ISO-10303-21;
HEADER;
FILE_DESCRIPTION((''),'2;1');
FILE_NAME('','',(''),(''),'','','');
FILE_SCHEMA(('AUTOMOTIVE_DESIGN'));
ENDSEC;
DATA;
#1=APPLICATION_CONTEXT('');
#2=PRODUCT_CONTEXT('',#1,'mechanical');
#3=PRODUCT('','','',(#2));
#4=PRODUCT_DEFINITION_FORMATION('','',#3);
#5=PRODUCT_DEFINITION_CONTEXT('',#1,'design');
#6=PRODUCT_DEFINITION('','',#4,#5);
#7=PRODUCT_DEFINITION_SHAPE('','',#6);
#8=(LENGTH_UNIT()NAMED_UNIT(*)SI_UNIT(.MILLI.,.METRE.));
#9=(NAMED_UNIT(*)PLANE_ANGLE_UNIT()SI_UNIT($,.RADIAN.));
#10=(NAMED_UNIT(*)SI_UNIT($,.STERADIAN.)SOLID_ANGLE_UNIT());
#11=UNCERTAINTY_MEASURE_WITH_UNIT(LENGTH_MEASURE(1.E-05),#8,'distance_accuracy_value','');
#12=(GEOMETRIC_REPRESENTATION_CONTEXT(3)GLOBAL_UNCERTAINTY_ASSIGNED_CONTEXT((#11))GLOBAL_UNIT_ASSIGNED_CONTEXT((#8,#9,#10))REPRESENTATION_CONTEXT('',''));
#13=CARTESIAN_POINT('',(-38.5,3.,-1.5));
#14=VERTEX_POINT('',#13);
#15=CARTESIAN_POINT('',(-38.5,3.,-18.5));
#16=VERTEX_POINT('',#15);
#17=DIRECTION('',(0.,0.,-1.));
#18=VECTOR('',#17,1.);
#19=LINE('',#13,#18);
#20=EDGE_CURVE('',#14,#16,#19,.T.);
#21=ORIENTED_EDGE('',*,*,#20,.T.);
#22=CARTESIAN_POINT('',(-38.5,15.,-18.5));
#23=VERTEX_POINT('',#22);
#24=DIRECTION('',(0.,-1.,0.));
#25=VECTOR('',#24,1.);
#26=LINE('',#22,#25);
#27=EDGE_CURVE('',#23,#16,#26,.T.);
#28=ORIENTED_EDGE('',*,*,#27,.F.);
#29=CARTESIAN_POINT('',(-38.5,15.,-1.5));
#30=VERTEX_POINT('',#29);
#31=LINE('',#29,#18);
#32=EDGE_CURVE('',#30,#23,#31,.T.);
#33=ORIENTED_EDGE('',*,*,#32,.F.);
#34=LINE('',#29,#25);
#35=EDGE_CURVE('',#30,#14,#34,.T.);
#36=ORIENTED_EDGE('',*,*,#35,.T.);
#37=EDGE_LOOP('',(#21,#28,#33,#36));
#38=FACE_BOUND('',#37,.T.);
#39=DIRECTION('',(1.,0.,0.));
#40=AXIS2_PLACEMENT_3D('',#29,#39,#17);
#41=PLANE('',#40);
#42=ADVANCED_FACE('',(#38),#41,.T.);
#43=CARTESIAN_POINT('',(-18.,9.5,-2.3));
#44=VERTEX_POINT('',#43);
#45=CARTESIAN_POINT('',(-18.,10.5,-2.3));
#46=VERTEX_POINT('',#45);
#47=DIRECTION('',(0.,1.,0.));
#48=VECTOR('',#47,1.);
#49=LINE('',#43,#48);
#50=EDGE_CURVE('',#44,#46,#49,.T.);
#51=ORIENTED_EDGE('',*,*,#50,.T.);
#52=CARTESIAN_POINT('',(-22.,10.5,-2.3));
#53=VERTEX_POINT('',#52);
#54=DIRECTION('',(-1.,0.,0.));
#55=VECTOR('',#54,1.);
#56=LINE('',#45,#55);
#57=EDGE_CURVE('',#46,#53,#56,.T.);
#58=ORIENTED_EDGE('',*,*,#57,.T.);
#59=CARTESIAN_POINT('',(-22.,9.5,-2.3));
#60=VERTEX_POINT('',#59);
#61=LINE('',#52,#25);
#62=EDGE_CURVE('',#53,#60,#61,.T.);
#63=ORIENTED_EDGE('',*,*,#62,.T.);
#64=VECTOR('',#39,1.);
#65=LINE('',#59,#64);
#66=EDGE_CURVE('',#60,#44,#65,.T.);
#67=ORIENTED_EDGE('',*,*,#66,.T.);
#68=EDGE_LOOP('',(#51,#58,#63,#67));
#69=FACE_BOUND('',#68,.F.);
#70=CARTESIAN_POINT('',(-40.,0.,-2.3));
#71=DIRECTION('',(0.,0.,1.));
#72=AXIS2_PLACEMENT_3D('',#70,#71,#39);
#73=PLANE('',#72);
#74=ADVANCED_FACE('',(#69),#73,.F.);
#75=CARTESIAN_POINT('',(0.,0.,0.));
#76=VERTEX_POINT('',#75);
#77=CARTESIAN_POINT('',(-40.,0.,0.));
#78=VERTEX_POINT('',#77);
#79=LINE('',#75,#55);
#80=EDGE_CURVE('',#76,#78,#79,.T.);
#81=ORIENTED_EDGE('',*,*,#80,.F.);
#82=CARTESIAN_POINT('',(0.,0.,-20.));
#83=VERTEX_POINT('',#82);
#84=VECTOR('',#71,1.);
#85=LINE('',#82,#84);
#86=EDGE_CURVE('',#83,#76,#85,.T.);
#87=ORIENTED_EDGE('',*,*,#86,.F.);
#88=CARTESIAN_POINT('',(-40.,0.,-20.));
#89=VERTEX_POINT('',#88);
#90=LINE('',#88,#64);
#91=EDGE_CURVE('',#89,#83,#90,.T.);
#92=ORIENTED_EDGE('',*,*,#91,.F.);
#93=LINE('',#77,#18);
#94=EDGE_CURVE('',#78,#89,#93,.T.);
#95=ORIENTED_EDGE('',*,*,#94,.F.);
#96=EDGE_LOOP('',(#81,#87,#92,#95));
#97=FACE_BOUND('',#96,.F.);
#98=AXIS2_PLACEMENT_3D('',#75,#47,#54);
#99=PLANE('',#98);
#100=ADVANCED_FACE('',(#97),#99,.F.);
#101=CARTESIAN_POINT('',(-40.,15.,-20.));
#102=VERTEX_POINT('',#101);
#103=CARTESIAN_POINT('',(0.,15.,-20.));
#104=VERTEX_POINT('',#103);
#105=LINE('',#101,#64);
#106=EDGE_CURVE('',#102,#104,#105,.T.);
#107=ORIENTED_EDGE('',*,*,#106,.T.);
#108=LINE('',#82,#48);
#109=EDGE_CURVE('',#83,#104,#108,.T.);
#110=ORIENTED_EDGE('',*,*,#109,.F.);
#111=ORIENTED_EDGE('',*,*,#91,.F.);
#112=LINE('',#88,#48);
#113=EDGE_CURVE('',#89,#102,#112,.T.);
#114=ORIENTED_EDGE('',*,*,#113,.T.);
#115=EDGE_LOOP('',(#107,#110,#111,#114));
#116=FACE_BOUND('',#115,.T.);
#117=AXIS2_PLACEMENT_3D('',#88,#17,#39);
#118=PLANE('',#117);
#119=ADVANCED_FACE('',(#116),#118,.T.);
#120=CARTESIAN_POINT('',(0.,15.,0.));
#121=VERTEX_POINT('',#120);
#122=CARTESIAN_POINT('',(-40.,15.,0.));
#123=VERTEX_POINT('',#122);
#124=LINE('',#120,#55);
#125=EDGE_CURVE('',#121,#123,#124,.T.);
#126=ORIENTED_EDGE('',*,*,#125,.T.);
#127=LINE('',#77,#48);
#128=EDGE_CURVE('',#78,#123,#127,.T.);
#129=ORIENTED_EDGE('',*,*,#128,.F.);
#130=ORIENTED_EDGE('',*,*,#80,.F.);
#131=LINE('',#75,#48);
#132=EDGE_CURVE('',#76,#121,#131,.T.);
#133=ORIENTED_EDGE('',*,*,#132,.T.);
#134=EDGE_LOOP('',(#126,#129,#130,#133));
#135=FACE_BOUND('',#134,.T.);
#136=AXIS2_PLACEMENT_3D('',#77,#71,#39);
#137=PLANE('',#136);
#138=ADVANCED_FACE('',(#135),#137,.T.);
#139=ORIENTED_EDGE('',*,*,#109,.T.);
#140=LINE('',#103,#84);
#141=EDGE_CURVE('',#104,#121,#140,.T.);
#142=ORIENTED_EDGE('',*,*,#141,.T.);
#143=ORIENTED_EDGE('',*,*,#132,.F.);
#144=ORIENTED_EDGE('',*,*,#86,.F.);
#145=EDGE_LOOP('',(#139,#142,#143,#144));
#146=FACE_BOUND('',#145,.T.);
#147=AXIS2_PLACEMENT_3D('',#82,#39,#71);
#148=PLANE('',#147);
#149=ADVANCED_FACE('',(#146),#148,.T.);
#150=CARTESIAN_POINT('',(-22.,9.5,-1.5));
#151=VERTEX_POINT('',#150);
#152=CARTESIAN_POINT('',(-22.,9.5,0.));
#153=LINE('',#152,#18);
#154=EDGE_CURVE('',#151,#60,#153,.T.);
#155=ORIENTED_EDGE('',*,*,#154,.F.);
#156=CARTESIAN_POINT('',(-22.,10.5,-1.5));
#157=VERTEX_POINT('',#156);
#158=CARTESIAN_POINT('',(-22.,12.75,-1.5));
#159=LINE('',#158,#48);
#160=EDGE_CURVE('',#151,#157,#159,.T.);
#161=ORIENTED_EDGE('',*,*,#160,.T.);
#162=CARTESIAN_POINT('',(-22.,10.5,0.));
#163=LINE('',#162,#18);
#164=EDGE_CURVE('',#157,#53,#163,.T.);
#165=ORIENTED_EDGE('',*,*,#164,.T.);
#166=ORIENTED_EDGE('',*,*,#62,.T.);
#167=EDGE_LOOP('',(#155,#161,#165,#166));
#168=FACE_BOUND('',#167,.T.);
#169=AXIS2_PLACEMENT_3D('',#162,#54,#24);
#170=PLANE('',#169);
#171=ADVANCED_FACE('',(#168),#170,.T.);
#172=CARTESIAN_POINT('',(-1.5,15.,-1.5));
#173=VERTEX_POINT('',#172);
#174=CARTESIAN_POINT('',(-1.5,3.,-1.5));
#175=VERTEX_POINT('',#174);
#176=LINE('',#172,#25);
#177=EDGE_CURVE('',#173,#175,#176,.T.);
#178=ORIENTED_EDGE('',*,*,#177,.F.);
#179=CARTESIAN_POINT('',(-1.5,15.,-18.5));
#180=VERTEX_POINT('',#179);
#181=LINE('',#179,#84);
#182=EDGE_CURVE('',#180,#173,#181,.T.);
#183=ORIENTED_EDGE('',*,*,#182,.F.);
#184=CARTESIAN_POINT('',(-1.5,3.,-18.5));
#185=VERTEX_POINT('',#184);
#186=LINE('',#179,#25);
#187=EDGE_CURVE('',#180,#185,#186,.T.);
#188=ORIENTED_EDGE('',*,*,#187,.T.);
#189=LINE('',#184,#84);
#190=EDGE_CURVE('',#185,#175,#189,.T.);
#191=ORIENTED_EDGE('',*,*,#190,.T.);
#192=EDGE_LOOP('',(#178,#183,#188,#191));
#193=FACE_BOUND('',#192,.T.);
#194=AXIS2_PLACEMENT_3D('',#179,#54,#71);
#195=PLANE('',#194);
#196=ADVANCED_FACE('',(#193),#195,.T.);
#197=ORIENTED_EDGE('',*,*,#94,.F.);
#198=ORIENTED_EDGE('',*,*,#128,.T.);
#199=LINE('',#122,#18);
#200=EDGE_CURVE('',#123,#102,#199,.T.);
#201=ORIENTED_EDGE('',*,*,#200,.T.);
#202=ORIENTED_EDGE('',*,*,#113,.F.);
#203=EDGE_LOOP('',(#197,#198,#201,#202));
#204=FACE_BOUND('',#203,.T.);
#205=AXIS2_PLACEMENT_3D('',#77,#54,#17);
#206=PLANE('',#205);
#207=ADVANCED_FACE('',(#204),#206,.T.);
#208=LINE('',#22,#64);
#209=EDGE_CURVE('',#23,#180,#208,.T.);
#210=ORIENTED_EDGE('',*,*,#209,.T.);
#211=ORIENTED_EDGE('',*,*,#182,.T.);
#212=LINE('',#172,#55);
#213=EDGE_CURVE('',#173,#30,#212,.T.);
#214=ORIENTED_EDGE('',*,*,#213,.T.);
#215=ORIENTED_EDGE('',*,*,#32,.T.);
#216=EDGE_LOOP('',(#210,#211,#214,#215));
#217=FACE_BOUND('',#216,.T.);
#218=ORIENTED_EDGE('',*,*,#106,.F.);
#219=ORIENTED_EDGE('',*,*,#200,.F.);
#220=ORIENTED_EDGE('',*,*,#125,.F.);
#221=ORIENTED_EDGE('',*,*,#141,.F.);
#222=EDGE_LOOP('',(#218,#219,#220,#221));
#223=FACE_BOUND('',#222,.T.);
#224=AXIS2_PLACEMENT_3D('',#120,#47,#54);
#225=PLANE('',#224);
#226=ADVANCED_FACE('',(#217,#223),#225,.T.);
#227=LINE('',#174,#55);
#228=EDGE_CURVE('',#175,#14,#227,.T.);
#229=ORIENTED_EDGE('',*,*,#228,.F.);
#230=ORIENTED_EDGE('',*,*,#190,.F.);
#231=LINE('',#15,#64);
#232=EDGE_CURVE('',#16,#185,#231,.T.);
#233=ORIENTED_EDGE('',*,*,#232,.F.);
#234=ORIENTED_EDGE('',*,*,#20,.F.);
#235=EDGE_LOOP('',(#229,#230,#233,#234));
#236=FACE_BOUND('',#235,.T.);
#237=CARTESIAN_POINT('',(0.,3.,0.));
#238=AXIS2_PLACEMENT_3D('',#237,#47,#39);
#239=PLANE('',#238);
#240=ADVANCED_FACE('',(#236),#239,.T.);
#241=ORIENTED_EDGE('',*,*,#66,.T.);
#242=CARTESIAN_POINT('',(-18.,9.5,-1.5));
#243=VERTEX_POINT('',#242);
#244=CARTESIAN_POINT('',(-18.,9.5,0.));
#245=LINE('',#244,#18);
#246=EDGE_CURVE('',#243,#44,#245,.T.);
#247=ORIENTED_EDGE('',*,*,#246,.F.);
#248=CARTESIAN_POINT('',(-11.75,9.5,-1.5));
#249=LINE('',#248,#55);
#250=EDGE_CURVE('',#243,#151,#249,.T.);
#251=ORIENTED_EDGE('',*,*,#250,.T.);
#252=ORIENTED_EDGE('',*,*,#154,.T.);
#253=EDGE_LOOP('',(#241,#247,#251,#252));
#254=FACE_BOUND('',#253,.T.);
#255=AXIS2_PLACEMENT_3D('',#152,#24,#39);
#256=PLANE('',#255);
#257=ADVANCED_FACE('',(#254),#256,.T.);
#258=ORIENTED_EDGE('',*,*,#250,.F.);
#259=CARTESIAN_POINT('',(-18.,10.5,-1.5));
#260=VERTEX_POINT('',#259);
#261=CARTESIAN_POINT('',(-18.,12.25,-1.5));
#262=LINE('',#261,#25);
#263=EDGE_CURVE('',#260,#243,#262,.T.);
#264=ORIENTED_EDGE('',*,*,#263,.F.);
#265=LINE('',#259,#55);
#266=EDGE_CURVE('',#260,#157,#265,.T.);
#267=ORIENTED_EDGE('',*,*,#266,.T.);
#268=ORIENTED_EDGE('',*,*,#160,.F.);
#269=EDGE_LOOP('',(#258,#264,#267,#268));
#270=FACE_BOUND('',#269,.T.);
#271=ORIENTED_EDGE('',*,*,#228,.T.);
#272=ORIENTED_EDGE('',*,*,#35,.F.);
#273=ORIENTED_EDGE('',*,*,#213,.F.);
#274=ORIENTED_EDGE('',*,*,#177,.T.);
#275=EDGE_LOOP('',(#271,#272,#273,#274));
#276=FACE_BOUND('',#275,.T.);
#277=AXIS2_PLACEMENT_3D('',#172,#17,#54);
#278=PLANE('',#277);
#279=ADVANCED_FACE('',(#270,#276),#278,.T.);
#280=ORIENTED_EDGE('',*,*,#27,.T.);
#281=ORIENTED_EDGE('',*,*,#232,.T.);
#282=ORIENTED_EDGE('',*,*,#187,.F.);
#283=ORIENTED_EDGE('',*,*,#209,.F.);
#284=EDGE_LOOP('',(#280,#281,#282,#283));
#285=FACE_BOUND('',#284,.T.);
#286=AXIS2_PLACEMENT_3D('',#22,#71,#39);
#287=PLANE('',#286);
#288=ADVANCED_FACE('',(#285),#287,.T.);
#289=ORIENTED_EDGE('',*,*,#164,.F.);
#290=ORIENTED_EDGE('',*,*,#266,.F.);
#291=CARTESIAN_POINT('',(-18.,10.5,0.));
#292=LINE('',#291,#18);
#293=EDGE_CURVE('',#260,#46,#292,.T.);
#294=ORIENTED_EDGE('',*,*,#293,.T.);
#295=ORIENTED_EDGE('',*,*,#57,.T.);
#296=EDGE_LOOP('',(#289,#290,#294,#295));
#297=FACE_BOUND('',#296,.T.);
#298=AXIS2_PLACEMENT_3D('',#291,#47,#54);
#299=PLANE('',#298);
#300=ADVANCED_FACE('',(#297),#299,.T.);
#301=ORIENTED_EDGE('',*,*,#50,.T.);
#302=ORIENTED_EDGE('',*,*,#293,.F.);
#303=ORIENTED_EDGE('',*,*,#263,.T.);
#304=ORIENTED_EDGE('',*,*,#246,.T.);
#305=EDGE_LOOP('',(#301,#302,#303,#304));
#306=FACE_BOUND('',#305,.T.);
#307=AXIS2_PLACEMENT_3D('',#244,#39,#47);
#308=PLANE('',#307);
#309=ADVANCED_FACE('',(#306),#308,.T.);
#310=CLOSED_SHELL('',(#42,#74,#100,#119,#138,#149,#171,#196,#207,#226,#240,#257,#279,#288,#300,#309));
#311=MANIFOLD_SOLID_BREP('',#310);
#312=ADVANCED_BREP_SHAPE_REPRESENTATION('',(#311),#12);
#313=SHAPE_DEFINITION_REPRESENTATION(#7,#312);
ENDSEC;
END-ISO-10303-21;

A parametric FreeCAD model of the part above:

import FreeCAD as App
import Part
import Sketcher
from FreeCAD import Vector

doc = App.newDocument("Part")
body = doc.addObject("PartDesign::Body", "Body")

# Sketch on XZ plane
sketch1 = doc.addObject("Sketcher::SketchObject", "Sketch")
body.addObject(sketch1)
sketch1.AttachmentSupport = (doc.XZ_Plane, [""])
sketch1.MapMode = "FlatFace"
sketch1.addGeometry([
    Part.LineSegment(Vector(-40, 0, 0), Vector(0, 0, 0)),
    Part.LineSegment(Vector(0, 0, 0), Vector(0, -20, 0)),
    Part.LineSegment(Vector(0, -20, 0), Vector(-40, -20, 0)),
    Part.LineSegment(Vector(-40, -20, 0), Vector(-40, 0, 0)),
], False)
sketch1.addConstraint([
    Sketcher.Constraint("Coincident", 0, 2, 1, 1),
    Sketcher.Constraint("Coincident", 1, 2, 2, 1),
    Sketcher.Constraint("Coincident", 2, 2, 3, 1),
    Sketcher.Constraint("Coincident", 3, 2, 0, 1),
    Sketcher.Constraint("Horizontal", 0),
    Sketcher.Constraint("Vertical", 1),
    Sketcher.Constraint("Horizontal", 2),
    Sketcher.Constraint("Vertical", 3),
    Sketcher.Constraint("Coincident", 0, 2, -1, 1),
    Sketcher.Constraint("DistanceX", 0, 1, 0, 2, 40.0),
    Sketcher.Constraint("DistanceY", 1, 2, 1, 1, 20.0),
])
pad1 = doc.addObject("PartDesign::Pad", "Pad")
body.addObject(pad1)
pad1.Profile = sketch1
pad1.Length = 15
pad1.Reversed = True

# Sketch on XZ plane
sketch2 = doc.addObject("Sketcher::SketchObject", "Sketch001")
body.addObject(sketch2)
sketch2.AttachmentSupport = (doc.XZ_Plane, [""])
sketch2.MapMode = "FlatFace"
sketch2.AttachmentOffset = App.Placement(Vector(0, 0, -15), App.Rotation())
sketch2.addGeometry([
    Part.LineSegment(Vector(-38, -2, 0), Vector(-2, -2, 0)),
    Part.LineSegment(Vector(-2, -2, 0), Vector(-2, -18, 0)),
    Part.LineSegment(Vector(-2, -18, 0), Vector(-38, -18, 0)),
    Part.LineSegment(Vector(-38, -18, 0), Vector(-38, -2, 0)),
], False)
sketch2.addConstraint([
    Sketcher.Constraint("Coincident", 0, 2, 1, 1),
    Sketcher.Constraint("Coincident", 1, 2, 2, 1),
    Sketcher.Constraint("Coincident", 2, 2, 3, 1),
    Sketcher.Constraint("Coincident", 3, 2, 0, 1),
    Sketcher.Constraint("Horizontal", 0),
    Sketcher.Constraint("Vertical", 1),
    Sketcher.Constraint("Horizontal", 2),
    Sketcher.Constraint("Vertical", 3),
    Sketcher.Constraint("DistanceX", 0, 1, 0, 2, 37.0),
    Sketcher.Constraint("DistanceY", 1, 2, 1, 1, 17.0),
    Sketcher.Constraint("DistanceX", 0, 2, -1, 1, 1.5),
    Sketcher.Constraint("DistanceY", 0, 2, -1, 1, 1.5),
])
pocket1 = doc.addObject("PartDesign::Pocket", "Pocket")
body.addObject(pocket1)
pocket1.Profile = sketch2
pocket1.Length = 12
pocket1.Reversed = True

# Sketch on XY plane
sketch3 = doc.addObject("Sketcher::SketchObject", "Sketch002")
body.addObject(sketch3)
sketch3.AttachmentSupport = (doc.XY_Plane, [""])
sketch3.MapMode = "FlatFace"
sketch3.addGeometry([
    Part.LineSegment(Vector(-18, 10.5, 0), Vector(-22, 10.5, 0)),
    Part.LineSegment(Vector(-22, 10.5, 0), Vector(-22, 9.5, 0)),
    Part.LineSegment(Vector(-22, 9.5, 0), Vector(-18, 9.5, 0)),
    Part.LineSegment(Vector(-18, 9.5, 0), Vector(-18, 10.5, 0)),
], False)
sketch3.addConstraint([
    Sketcher.Constraint("Coincident", 0, 2, 1, 1),
    Sketcher.Constraint("Coincident", 1, 2, 2, 1),
    Sketcher.Constraint("Coincident", 2, 2, 3, 1),
    Sketcher.Constraint("Coincident", 3, 2, 0, 1),
    Sketcher.Constraint("Horizontal", 0),
    Sketcher.Constraint("Vertical", 1),
    Sketcher.Constraint("Horizontal", 2),
    Sketcher.Constraint("Vertical", 3),
    Sketcher.Constraint("DistanceX", 0, 2, 0, 1, 4.0),
    Sketcher.Constraint("DistanceY", 1, 2, 1, 1, 1.0),
    Sketcher.Constraint("DistanceX", 0, 2, -1, 1, 22.0),
    Sketcher.Constraint("DistanceY", -1, 1, 0, 2, 10.5),
])
pad2 = doc.addObject("PartDesign::Pad", "Pad001")
body.addObject(pad2)
pad2.Profile = sketch3
pad2.Length = 2.3
pad2.Reversed = True

doc.recompute()
